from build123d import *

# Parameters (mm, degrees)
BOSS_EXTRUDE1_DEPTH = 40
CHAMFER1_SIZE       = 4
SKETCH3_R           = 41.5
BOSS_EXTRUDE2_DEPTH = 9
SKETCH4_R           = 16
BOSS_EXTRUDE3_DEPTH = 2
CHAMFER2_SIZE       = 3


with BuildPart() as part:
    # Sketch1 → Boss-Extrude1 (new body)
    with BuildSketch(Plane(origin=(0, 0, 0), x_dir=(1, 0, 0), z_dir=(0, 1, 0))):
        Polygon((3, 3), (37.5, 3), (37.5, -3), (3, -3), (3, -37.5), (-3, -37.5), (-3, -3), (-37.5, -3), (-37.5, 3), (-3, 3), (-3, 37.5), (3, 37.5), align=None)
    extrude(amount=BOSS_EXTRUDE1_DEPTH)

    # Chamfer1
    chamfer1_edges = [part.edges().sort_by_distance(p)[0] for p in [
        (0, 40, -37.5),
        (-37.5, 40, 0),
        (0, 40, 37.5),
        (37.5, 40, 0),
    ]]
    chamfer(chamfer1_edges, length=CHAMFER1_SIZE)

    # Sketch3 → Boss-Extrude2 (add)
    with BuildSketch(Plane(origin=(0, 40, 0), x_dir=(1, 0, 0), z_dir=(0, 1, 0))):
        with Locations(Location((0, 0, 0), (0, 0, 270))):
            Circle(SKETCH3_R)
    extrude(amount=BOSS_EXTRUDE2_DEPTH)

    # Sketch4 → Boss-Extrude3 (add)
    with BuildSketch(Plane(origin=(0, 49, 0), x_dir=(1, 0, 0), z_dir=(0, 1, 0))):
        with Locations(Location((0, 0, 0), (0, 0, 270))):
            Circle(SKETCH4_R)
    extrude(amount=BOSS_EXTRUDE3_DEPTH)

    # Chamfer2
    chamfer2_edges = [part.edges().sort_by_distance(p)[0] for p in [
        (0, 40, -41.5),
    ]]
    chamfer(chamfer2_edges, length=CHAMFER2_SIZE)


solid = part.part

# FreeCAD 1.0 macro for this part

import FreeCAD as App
import Part
import Sketcher

V = App.Vector
Q = App.Units.Quantity


def edges_at(feature, points):
    """Names of the edges that pass closest to the given points."""
    edges = feature.Shape.Edges
    near = lambda p: min(range(len(edges)), key=lambda i: edges[i].distToShape(Part.Vertex(*p))[0])
    return sorted({f"Edge{near(p) + 1}" for p in points})

doc = App.newDocument("Part")
params = doc.addObject("Spreadsheet::Sheet", "Params")
for row, (alias, value) in enumerate([
    ("sketch1_width", "6 mm"),
    ("sketch1_width2", "34.5 mm"),
    ("pad1_length", "40 mm"),
    ("chamfer_size", "4 mm"),
    ("sketch2_diameter", "83 mm"),
    ("pad2_length", "9 mm"),
    ("sketch3_diameter", "32 mm"),
    ("pad3_length", "2 mm"),
    ("chamfer2_size", "3 mm"),
], start=1):
    params.set(f"A{row}", alias)
    params.set(f"B{row}", "=" + value)
    params.setAlias(f"B{row}", alias)

body = doc.addObject("PartDesign::Body", "Body")

# Sketch on XZ plane
sketch1 = doc.addObject("Sketcher::SketchObject", "Sketch")
body.addObject(sketch1)
sketch1.AttachmentSupport = (doc.XZ_Plane, [""])
sketch1.MapMode = "FlatFace"
sketch1.addGeometry([
    Part.LineSegment(V(38, -3, 0), V(3, -3, 0)),  # 0
    Part.LineSegment(V(3, -3, 0), V(3, -38, 0)),  # 1
    Part.LineSegment(V(3, -38, 0), V(-3, -38, 0)),  # 2
    Part.LineSegment(V(-3, -38, 0), V(-3, -3, 0)),  # 3
    Part.LineSegment(V(-3, -3, 0), V(-38, -3, 0)),  # 4
    Part.LineSegment(V(-38, -3, 0), V(-38, 3, 0)),  # 5
    Part.LineSegment(V(-38, 3, 0), V(-3, 3, 0)),  # 6
    Part.LineSegment(V(-3, 3, 0), V(-3, 38, 0)),  # 7
    Part.LineSegment(V(-3, 38, 0), V(3, 38, 0)),  # 8
    Part.LineSegment(V(3, 38, 0), V(3, 3, 0)),  # 9
    Part.LineSegment(V(3, 3, 0), V(38, 3, 0)),  # 10
    Part.LineSegment(V(38, 3, 0), V(38, -3, 0)),  # 11
], False)
sketch1.addConstraint([
    Sketcher.Constraint("Coincident", 0, 2, 1, 1),
    Sketcher.Constraint("Coincident", 1, 2, 2, 1),
    Sketcher.Constraint("Coincident", 2, 2, 3, 1),
    Sketcher.Constraint("Coincident", 3, 2, 4, 1),
    Sketcher.Constraint("Coincident", 4, 2, 5, 1),
    Sketcher.Constraint("Coincident", 5, 2, 6, 1),
    Sketcher.Constraint("Coincident", 6, 2, 7, 1),
    Sketcher.Constraint("Coincident", 7, 2, 8, 1),
    Sketcher.Constraint("Coincident", 8, 2, 9, 1),
    Sketcher.Constraint("Coincident", 9, 2, 10, 1),
    Sketcher.Constraint("Coincident", 10, 2, 11, 1),
    Sketcher.Constraint("Coincident", 11, 2, 0, 1),
    Sketcher.Constraint("Horizontal", 0),
    Sketcher.Constraint("Vertical", 1),
    Sketcher.Constraint("Horizontal", 2),
    Sketcher.Constraint("Vertical", 3),
    Sketcher.Constraint("Horizontal", 4),
    Sketcher.Constraint("Vertical", 5),
    Sketcher.Constraint("Horizontal", 6),
    Sketcher.Constraint("Vertical", 7),
    Sketcher.Constraint("Horizontal", 8),
    Sketcher.Constraint("Vertical", 9),
    Sketcher.Constraint("Horizontal", 10),
    Sketcher.Constraint("Vertical", 11),
    Sketcher.Constraint("Symmetric", 0, 2, 6, 2, -1, 1),
    Sketcher.Constraint("Symmetric", 2, 2, 8, 2, -1, 1),
    Sketcher.Constraint("Symmetric", 4, 2, 10, 2, -1, 1),
    Sketcher.Constraint("Symmetric", 0, 2, 3, 2, -2),
    Sketcher.Constraint("Equal", 10, 1),
    Sketcher.Constraint("Equal", 8, 5),
    Sketcher.Constraint("DistanceX", 2, 2, 2, 1, Q("6 mm")),
    Sketcher.Constraint("DistanceX", 0, 2, 0, 1, Q("34.5 mm")),
])
sketch1.setExpression("Constraints[30]", "Params.sketch1_width")
sketch1.setExpression("Constraints[31]", "Params.sketch1_width2")
pad1 = doc.addObject("PartDesign::Pad", "Pad")
body.addObject(pad1)
pad1.Profile = sketch1
pad1.setExpression("Length", "Params.pad1_length")
pad1.Reversed = True
doc.recompute()

chamfer = doc.addObject("PartDesign::Chamfer", "Chamfer")
body.addObject(chamfer)
chamfer.Base = (pad1, edges_at(pad1, [
    (0, 40, -37.5),
    (-37.5, 40, 0),
    (0, 40, 37.5),
    (37.5, 40, 0),
]))
chamfer.setExpression("Size", "Params.chamfer_size")

# Sketch on XZ plane
sketch2 = doc.addObject("Sketcher::SketchObject", "Sketch001")
body.addObject(sketch2)
sketch2.AttachmentSupport = (doc.XZ_Plane, [""])
sketch2.MapMode = "FlatFace"
sketch2.AttachmentOffset = App.Placement(V(0, 0, -40), App.Rotation())
sketch2.addGeometry(Part.Circle(V(0, 0, 0), V(0, 0, 1), 42), False)
sketch2.addConstraint([
    Sketcher.Constraint("Coincident", 0, 3, -1, 1),
    Sketcher.Constraint("Diameter", 0, Q("83 mm")),
])
sketch2.setExpression("Constraints[1]", "Params.sketch2_diameter")
pad2 = doc.addObject("PartDesign::Pad", "Pad001")
body.addObject(pad2)
pad2.Profile = sketch2
pad2.setExpression("Length", "Params.pad2_length")
pad2.Reversed = True

# Sketch on XZ plane
sketch3 = doc.addObject("Sketcher::SketchObject", "Sketch002")
body.addObject(sketch3)
sketch3.AttachmentSupport = (doc.XZ_Plane, [""])
sketch3.MapMode = "FlatFace"
sketch3.AttachmentOffset = App.Placement(V(0, 0, -49), App.Rotation())
sketch3.addGeometry(Part.Circle(V(0, 0, 0), V(0, 0, 1), 16), False)
sketch3.addConstraint([
    Sketcher.Constraint("Coincident", 0, 3, -1, 1),
    Sketcher.Constraint("Diameter", 0, Q("32 mm")),
])
sketch3.setExpression("Constraints[1]", "Params.sketch3_diameter")
pad3 = doc.addObject("PartDesign::Pad", "Pad002")
body.addObject(pad3)
pad3.Profile = sketch3
pad3.setExpression("Length", "Params.pad3_length")
pad3.Reversed = True
doc.recompute()

chamfer2 = doc.addObject("PartDesign::Chamfer", "Chamfer001")
body.addObject(chamfer2)
chamfer2.Base = (pad3, edges_at(pad3, [(0, 40, -41.5)]))
chamfer2.setExpression("Size", "Params.chamfer2_size")

doc.recompute()
